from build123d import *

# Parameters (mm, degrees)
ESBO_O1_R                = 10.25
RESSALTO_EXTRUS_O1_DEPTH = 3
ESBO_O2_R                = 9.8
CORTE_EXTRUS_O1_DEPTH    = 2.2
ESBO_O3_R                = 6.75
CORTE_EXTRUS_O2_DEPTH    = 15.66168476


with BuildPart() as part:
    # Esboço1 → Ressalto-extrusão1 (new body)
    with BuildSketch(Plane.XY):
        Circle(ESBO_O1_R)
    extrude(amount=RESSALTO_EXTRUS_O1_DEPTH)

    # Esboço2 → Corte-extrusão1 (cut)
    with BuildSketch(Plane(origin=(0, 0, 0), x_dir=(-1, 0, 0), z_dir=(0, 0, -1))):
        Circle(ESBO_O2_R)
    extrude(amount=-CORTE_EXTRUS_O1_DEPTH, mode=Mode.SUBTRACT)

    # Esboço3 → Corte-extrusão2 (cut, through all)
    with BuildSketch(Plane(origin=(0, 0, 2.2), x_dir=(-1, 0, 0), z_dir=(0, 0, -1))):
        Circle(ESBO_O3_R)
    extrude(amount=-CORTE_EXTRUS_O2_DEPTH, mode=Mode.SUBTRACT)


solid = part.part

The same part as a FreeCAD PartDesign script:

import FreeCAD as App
import Part
import Sketcher
from FreeCAD import Vector
Q = App.Units.Quantity

doc = App.newDocument("Part")
body = doc.addObject("PartDesign::Body", "Body")

# Sketch on XY plane
sketch1 = body.newObject("Sketcher::SketchObject", "Sketch")
sketch1.AttachmentSupport = (doc.getObject("XY_Plane"), [""])
sketch1.MapMode = "FlatFace"
sketch1.addGeometry(Part.Circle(Vector(0, 0, 0), Vector(0, 0, 1), 10), False)
sketch1.addConstraint([
    Sketcher.Constraint("Coincident", 0, 3, -1, 1),
    Sketcher.Constraint("Diameter", 0, Q("20.5 mm")),
])
pad1 = body.newObject("PartDesign::Pad", "Pad")
pad1.Profile = sketch1
pad1.Length = 3

# Sketch on XY plane
sketch2 = body.newObject("Sketcher::SketchObject", "Sketch001")
sketch2.AttachmentSupport = (doc.getObject("XY_Plane"), [""])
sketch2.MapMode = "FlatFace"
sketch2.addGeometry(Part.Circle(Vector(0, 0, 0), Vector(0, 0, 1), 10), False)
sketch2.addConstraint([
    Sketcher.Constraint("Coincident", 0, 3, -1, 1),
    Sketcher.Constraint("Diameter", 0, Q("19.6 mm")),
])
pocket1 = body.newObject("PartDesign::Pocket", "Pocket")
pocket1.Profile = sketch2
pocket1.Length = 2.2
pocket1.Reversed = True

# Sketch on XY plane
sketch3 = body.newObject("Sketcher::SketchObject", "Sketch002")
sketch3.AttachmentSupport = (doc.getObject("XY_Plane"), [""])
sketch3.MapMode = "FlatFace"
sketch3.AttachmentOffset = App.Placement(Vector(0, 0, 2.2), App.Rotation())
sketch3.addGeometry(Part.Circle(Vector(0, 0, 0), Vector(0, 0, 1), 7), False)
sketch3.addConstraint([
    Sketcher.Constraint("Coincident", 0, 3, -1, 1),
    Sketcher.Constraint("Diameter", 0, Q("13.5 mm")),
])
pocket2 = body.newObject("PartDesign::Pocket", "Pocket001")
pocket2.Profile = sketch3
pocket2.Type = "ThroughAll"
pocket2.Reversed = True

doc.recompute()
